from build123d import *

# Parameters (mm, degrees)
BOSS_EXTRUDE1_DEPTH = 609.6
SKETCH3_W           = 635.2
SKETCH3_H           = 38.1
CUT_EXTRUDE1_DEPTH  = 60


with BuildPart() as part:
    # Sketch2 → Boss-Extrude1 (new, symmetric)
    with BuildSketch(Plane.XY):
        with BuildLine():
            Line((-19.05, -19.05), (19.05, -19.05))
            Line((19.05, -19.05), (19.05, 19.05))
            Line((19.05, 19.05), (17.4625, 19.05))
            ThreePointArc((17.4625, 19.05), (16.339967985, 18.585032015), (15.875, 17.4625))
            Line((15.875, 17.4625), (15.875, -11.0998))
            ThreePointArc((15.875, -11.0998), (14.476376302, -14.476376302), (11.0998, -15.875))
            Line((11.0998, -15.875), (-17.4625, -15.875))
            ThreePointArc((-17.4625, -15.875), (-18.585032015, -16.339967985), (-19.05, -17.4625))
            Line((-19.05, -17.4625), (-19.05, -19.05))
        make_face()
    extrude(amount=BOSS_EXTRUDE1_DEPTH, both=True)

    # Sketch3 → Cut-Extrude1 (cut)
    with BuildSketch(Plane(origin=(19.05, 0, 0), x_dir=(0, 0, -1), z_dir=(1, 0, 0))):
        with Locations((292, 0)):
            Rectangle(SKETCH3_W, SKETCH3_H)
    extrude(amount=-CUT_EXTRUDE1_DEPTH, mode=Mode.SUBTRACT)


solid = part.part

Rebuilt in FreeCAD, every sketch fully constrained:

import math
import FreeCAD as App
import Part
import Sketcher
from FreeCAD import Vector
Q = App.Units.Quantity

doc = App.newDocument("Part")
body = doc.addObject("PartDesign::Body", "Body")

# Sketch on XY plane
sketch1 = body.newObject("Sketcher::SketchObject", "Sketch")
sketch1.AttachmentSupport = (doc.getObject("XY_Plane"), [""])
sketch1.MapMode = "FlatFace"
sketch1.addGeometry(Part.LineSegment(Vector(-19.05, -19.05, 0), Vector(19.05, -19.05, 0)), False)
sketch1.addGeometry(Part.LineSegment(Vector(19.05, -19.05, 0), Vector(19.05, 19.05, 0)), False)
sketch1.addGeometry(Part.LineSegment(Vector(19.05, 19.05, 0), Vector(17.4625, 19.05, 0)), False)
sketch1.addGeometry(Part.ArcOfCircle(Part.Circle(Vector(17.4625, 17.4625, 0), Vector(0, 0, 1), 1.5875), math.radians(90), math.radians(180)), False)
sketch1.addGeometry(Part.LineSegment(Vector(15.875, 17.4625, 0), Vector(15.875, -11.0998, 0)), False)
sketch1.addGeometry(Part.ArcOfCircle(Part.Circle(Vector(11.0998, -11.0998, 0), Vector(0, 0, 1), 4.7752), math.radians(-90), math.radians(0)), False)
sketch1.addGeometry(Part.LineSegment(Vector(11.0998, -15.875, 0), Vector(-17.4625, -15.875, 0)), False)
sketch1.addGeometry(Part.ArcOfCircle(Part.Circle(Vector(-17.4625, -17.4625, 0), Vector(0, 0, 1), 1.5875), math.radians(90), math.radians(180)), False)
sketch1.addGeometry(Part.LineSegment(Vector(-19.05, -17.4625, 0), Vector(-19.05, -19.05, 0)), False)
sketch1.addConstraint(Sketcher.Constraint("Coincident", 0, 2, 1, 1))
sketch1.addConstraint(Sketcher.Constraint("Coincident", 1, 2, 2, 1))
sketch1.addConstraint(Sketcher.Constraint("Tangent", 2, 2, 3, 1))
sketch1.addConstraint(Sketcher.Constraint("Tangent", 3, 2, 4, 1))
sketch1.addConstraint(Sketcher.Constraint("Tangent", 4, 2, 5, 2))
sketch1.addConstraint(Sketcher.Constraint("Tangent", 5, 1, 6, 1))
sketch1.addConstraint(Sketcher.Constraint("Tangent", 6, 2, 7, 1))
sketch1.addConstraint(Sketcher.Constraint("Tangent", 7, 2, 8, 1))
sketch1.addConstraint(Sketcher.Constraint("Coincident", 8, 2, 0, 1))
sketch1.addConstraint(Sketcher.Constraint("Horizontal", 0))
sketch1.addConstraint(Sketcher.Constraint("Vertical", 1))
sketch1.addConstraint(Sketcher.Constraint("Horizontal", 2))
sketch1.addConstraint(Sketcher.Constraint("Vertical", 4))
sketch1.addConstraint(Sketcher.Constraint("Horizontal", 6))
sketch1.addConstraint(Sketcher.Constraint("Vertical", 8))
sketch1.addConstraint(Sketcher.Constraint("Equal", 3, 7))
sketch1.addConstraint(Sketcher.Constraint("Symmetric", 3, 3, 7, 3, -1, 1))
sketch1.addConstraint(Sketcher.Constraint("Symmetric", 1, 2, 8, 2, -1, 1))
sketch1.addConstraint(Sketcher.Constraint("Equal", 0, 1))
sketch1.addConstraint(Sketcher.Constraint("DistanceX", 0, 1, 0, 2, Q("1.5 in")))
sketch1.addConstraint(Sketcher.Constraint("Radius", 3, Q("0.0625 in")))
sketch1.addConstraint(Sketcher.Constraint("Radius", 5, Q("0.188 in")))
pad1 = body.newObject("PartDesign::Pad", "Pad")
pad1.Profile = sketch1
pad1.Length = Q("48 in")
pad1.Midplane = True

# Sketch on YZ plane
sketch2 = body.newObject("Sketcher::SketchObject", "Sketch001")
sketch2.AttachmentSupport = (doc.getObject("YZ_Plane"), [""])
sketch2.MapMode = "FlatFace"
sketch2.AttachmentOffset = App.Placement(Vector(0, 0, 0.75 * 25.4), App.Rotation())
sketch2.addGeometry(Part.LineSegment(Vector(19.05, 25.6, 0), Vector(-19.05, 25.6, 0)), False)
sketch2.addGeometry(Part.LineSegment(Vector(-19.05, 25.6, 0), Vector(-19.05, -609.6, 0)), False)
sketch2.addGeometry(Part.LineSegment(Vector(-19.05, -609.6, 0), Vector(19.05, -609.6, 0)), False)
sketch2.addGeometry(Part.LineSegment(Vector(19.05, -609.6, 0), Vector(19.05, 25.6, 0)), False)
sketch2.addConstraint(Sketcher.Constraint("Coincident", 0, 2, 1, 1))
sketch2.addConstraint(Sketcher.Constraint("Coincident", 1, 2, 2, 1))
sketch2.addConstraint(Sketcher.Constraint("Coincident", 2, 2, 3, 1))
sketch2.addConstraint(Sketcher.Constraint("Coincident", 3, 2, 0, 1))
sketch2.addConstraint(Sketcher.Constraint("Horizontal", 0))
sketch2.addConstraint(Sketcher.Constraint("Vertical", 1))
sketch2.addConstraint(Sketcher.Constraint("Horizontal", 2))
sketch2.addConstraint(Sketcher.Constraint("Vertical", 3))
sketch2.addConstraint(Sketcher.Constraint("DistanceX", 0, 2, 0, 1, Q("1.5 in")))
sketch2.addConstraint(Sketcher.Constraint("DistanceY", 1, 2, -1, 1, Q("24 in")))
sketch2.addConstraint(Sketcher.Constraint("DistanceX", 0, 2, -1, 1, Q("0.75 in")))
sketch2.addConstraint(Sketcher.Constraint("DistanceY", 1, 2, 1, 1, Q("635.2 mm")))
pocket1 = body.newObject("PartDesign::Pocket", "Pocket")
pocket1.Profile = sketch2
pocket1.Length = 60

doc.recompute()
